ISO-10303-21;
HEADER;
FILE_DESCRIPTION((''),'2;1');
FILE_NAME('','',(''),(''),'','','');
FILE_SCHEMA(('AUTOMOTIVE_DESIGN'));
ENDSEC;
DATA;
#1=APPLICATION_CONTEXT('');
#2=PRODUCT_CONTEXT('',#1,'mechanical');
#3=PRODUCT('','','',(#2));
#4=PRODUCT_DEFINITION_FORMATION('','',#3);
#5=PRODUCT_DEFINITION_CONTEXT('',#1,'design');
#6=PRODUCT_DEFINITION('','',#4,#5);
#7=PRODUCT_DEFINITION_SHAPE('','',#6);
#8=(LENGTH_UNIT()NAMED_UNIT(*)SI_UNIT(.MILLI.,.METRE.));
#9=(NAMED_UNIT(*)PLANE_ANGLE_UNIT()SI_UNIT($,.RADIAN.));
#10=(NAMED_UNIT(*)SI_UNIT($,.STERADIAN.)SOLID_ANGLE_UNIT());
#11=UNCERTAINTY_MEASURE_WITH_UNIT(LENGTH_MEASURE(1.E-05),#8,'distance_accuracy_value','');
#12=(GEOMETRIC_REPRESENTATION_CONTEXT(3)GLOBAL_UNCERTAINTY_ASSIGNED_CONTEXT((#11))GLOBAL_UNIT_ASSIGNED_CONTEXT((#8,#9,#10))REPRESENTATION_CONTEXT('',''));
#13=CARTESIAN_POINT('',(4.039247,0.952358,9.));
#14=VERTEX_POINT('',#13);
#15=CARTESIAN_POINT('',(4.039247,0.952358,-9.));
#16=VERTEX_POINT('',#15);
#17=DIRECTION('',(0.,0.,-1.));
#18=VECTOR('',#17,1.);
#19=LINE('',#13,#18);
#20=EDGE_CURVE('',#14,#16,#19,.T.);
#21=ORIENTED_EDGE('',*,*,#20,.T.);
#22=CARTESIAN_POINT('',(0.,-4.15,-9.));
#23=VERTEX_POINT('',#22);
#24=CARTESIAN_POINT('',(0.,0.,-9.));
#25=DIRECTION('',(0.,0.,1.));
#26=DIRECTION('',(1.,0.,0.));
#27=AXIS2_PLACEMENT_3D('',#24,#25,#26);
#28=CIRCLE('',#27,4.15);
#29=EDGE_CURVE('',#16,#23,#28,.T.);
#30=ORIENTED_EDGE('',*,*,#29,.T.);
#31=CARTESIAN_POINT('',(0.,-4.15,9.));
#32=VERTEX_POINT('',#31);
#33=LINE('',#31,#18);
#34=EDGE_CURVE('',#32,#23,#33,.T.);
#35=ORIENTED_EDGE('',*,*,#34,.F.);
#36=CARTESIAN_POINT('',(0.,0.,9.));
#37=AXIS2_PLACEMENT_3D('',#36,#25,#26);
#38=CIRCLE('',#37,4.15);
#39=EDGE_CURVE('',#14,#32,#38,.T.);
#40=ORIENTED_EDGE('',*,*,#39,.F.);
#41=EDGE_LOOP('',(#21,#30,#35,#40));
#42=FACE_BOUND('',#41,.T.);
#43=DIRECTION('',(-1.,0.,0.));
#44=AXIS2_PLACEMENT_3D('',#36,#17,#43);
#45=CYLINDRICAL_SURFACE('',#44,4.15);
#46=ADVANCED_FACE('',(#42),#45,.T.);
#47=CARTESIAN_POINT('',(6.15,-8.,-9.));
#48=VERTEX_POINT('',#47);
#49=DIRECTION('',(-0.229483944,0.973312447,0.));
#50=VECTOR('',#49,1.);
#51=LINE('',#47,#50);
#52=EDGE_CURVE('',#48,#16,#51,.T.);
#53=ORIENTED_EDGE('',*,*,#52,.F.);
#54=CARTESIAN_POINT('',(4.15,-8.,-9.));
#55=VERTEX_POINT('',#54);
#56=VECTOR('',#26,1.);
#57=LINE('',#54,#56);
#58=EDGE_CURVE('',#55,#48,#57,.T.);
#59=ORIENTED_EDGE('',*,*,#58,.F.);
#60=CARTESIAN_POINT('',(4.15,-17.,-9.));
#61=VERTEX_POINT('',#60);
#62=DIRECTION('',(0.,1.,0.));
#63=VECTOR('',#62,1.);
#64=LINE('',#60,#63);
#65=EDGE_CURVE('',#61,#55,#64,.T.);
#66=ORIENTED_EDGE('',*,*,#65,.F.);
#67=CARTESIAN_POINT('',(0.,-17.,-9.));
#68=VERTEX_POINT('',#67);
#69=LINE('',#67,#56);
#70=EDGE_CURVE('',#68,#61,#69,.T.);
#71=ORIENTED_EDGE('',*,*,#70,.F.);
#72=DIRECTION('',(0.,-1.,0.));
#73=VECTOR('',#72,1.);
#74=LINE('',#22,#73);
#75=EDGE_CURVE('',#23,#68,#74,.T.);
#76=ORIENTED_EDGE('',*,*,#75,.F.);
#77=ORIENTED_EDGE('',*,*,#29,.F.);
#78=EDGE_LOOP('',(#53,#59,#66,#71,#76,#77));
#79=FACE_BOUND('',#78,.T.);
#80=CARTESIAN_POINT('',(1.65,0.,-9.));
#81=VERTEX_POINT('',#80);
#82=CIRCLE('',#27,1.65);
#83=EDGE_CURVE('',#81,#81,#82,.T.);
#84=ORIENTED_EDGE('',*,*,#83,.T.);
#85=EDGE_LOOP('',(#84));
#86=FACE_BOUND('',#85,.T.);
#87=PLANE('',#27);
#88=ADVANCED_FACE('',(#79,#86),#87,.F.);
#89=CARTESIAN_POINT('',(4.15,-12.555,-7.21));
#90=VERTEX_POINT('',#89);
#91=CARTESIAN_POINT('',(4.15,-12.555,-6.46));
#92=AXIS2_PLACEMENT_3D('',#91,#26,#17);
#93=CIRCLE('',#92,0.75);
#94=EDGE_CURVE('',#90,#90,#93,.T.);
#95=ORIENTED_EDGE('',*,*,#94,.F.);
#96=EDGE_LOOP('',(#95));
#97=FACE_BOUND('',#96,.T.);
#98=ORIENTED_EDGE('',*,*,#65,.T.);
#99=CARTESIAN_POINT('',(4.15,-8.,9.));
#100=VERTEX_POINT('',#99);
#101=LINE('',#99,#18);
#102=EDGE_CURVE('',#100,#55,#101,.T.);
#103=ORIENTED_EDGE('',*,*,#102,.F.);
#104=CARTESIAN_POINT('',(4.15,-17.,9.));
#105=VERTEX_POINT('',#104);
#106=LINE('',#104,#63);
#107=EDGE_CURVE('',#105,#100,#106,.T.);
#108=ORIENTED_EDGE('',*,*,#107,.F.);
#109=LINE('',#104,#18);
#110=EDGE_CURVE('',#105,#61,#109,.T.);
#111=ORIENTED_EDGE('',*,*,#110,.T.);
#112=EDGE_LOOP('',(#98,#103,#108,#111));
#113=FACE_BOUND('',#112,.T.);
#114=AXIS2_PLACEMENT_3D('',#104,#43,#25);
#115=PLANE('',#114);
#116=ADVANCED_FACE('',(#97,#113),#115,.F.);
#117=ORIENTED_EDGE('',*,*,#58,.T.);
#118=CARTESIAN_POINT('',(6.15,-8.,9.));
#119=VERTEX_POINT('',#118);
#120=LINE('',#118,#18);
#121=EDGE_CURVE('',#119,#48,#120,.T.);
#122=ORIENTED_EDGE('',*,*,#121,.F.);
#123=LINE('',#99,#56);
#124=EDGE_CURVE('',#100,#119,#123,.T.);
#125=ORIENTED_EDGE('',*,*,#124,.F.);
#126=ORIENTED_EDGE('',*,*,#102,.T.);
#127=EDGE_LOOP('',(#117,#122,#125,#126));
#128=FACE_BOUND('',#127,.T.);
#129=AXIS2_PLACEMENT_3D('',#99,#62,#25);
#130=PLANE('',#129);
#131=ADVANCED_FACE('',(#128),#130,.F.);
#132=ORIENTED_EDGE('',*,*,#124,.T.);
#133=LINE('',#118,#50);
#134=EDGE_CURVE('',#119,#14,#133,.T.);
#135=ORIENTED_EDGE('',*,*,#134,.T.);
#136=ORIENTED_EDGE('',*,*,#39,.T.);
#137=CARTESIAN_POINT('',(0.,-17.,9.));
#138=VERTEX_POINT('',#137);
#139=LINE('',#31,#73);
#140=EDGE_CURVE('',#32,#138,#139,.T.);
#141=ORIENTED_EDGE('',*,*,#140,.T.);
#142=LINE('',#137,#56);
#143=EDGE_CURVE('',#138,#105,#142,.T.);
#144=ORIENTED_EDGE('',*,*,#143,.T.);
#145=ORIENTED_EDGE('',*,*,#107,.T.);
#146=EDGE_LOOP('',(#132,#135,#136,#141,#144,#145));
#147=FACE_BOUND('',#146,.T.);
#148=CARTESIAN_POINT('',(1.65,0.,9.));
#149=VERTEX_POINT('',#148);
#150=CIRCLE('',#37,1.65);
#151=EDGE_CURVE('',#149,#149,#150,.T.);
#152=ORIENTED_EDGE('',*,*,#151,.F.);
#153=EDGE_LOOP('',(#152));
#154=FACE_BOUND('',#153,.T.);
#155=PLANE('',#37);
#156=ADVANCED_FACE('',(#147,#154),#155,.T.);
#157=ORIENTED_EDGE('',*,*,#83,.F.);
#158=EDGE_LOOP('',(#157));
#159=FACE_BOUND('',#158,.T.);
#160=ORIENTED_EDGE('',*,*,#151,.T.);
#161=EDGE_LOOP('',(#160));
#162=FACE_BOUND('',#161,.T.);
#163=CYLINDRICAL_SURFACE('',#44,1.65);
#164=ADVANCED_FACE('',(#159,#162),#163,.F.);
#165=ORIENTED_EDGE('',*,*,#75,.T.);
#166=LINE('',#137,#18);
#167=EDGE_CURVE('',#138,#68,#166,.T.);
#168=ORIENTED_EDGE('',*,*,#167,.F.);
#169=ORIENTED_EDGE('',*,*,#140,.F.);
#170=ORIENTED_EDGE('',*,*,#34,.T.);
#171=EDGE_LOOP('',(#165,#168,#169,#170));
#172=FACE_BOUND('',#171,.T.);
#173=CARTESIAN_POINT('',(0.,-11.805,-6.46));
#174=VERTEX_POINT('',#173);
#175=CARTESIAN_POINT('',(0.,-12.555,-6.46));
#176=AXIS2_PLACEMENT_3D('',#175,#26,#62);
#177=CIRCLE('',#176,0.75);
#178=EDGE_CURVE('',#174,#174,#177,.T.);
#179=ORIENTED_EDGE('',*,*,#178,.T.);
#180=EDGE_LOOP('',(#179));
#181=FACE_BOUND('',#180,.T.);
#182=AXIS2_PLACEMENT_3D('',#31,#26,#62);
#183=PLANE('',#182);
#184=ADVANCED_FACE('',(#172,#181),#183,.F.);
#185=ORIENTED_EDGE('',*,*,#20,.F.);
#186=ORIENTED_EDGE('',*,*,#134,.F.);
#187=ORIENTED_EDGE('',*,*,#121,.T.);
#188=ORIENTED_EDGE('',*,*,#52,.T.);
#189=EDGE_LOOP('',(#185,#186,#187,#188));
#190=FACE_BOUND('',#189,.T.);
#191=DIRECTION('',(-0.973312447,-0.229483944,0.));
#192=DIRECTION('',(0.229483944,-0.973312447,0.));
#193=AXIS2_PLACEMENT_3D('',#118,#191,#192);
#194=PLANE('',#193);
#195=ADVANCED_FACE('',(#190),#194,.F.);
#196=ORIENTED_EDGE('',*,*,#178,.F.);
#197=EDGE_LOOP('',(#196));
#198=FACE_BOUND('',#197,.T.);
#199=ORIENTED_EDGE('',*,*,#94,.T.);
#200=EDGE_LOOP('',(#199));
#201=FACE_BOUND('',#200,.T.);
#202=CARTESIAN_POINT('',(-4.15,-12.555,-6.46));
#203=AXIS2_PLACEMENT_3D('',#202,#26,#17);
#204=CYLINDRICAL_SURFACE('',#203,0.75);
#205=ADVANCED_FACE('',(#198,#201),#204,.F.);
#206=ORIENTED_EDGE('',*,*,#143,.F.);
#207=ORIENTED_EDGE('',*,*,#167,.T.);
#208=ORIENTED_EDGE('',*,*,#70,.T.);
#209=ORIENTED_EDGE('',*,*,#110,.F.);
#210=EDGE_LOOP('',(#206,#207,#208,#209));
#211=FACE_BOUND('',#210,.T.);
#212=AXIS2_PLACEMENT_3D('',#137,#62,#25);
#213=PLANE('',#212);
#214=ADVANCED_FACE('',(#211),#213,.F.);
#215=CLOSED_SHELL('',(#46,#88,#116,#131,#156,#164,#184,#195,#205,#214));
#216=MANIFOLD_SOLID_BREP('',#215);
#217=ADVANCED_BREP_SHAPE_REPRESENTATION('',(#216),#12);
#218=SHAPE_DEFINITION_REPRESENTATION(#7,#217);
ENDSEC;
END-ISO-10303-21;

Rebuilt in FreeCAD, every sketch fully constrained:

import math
import FreeCAD as App
import Part
import Sketcher

V = App.Vector
Q = App.Units.Quantity

doc = App.newDocument("Part")
body = doc.addObject("PartDesign::Body", "Body")

sketch1 = doc.addObject("Sketcher::SketchObject", "Sketch")
body.addObject(sketch1)
sketch1.AttachmentSupport = (doc.XY_Plane, [""])
sketch1.MapMode = "FlatFace"
sketch1.addGeometry([
    Part.LineSegment(V(0, -4.15, 0), V(0, -17, 0)),
    Part.LineSegment(V(0, -17, 0), V(4.15, -17, 0)),
    Part.LineSegment(V(4.15, -17, 0), V(4.15, -8, 0)),
    Part.LineSegment(V(4.15, -8, 0), V(6.15, -8, 0)),
    Part.LineSegment(V(6.15, -8, 0), V(4.039247, 0.952358, 0)),
    Part.ArcOfCircle(Part.Circle(V(0, 0, 0), V(0, 0, 1), 4.15), math.radians(13.266691), math.radians(270)),
    Part.Circle(V(0, 0, 0), V(0, 0, 1), 1.65),
], False)
sketch1.addConstraint([
    Sketcher.Constraint("Coincident", 0, 2, 1, 1),
    Sketcher.Constraint("Coincident", 1, 2, 2, 1),
    Sketcher.Constraint("Coincident", 2, 2, 3, 1),
    Sketcher.Constraint("Coincident", 3, 2, 4, 1),
    Sketcher.Constraint("Tangent", 4, 2, 5, 1),
    Sketcher.Constraint("Coincident", 5, 2, 0, 1),
    Sketcher.Constraint("Vertical", 0),
    Sketcher.Constraint("Horizontal", 1),
    Sketcher.Constraint("Vertical", 2),
    Sketcher.Constraint("Horizontal", 3),
    Sketcher.Constraint("Coincident", 5, 3, -1, 1),
    Sketcher.Constraint("Coincident", 6, 3, -1, 1),
    Sketcher.Constraint("PointOnObject", 0, 2, -2),
    Sketcher.Constraint("Diameter", 6, Q("3.3 mm")),
    Sketcher.Constraint("DistanceX", 3, 1, 3, 2, Q("2 mm")),
    Sketcher.Constraint("DistanceY", 2, 1, 2, 2, Q("9 mm")),
    Sketcher.Constraint("Radius", 5, Q("4.15 mm")),
    Sketcher.Constraint("DistanceY", 0, 2, -1, 1, Q("17 mm")),
    Sketcher.Constraint("DistanceX", 1, 1, 1, 2, Q("4.15 mm")),
])
pad1 = doc.addObject("PartDesign::Pad", "Pad")
body.addObject(pad1)
pad1.Profile = sketch1
pad1.Length = 18
pad1.Midplane = True

sketch2 = doc.addObject("Sketcher::SketchObject", "Sketch001")
body.addObject(sketch2)
sketch2.AttachmentSupport = (doc.YZ_Plane, [""])
sketch2.MapMode = "FlatFace"
sketch2.AttachmentOffset = App.Placement(V(0, 0, 4.15), App.Rotation())
sketch2.addGeometry(Part.Circle(V(-12.555, -6.46, 0), V(0, 0, 1), 0.75), False)
sketch2.addConstraint([
    Sketcher.Constraint("Diameter", 0, Q("1.5 mm")),
    Sketcher.Constraint("DistanceY", 0, 3, -1, 1, Q("6.46 mm")),
    Sketcher.Constraint("DistanceX", 0, 3, -1, 1, Q("12.555 mm")),
])
pocket1 = doc.addObject("PartDesign::Pocket", "Pocket")
body.addObject(pocket1)
pocket1.Profile = sketch2
pocket1.Type = "ThroughAll"

doc.recompute()
